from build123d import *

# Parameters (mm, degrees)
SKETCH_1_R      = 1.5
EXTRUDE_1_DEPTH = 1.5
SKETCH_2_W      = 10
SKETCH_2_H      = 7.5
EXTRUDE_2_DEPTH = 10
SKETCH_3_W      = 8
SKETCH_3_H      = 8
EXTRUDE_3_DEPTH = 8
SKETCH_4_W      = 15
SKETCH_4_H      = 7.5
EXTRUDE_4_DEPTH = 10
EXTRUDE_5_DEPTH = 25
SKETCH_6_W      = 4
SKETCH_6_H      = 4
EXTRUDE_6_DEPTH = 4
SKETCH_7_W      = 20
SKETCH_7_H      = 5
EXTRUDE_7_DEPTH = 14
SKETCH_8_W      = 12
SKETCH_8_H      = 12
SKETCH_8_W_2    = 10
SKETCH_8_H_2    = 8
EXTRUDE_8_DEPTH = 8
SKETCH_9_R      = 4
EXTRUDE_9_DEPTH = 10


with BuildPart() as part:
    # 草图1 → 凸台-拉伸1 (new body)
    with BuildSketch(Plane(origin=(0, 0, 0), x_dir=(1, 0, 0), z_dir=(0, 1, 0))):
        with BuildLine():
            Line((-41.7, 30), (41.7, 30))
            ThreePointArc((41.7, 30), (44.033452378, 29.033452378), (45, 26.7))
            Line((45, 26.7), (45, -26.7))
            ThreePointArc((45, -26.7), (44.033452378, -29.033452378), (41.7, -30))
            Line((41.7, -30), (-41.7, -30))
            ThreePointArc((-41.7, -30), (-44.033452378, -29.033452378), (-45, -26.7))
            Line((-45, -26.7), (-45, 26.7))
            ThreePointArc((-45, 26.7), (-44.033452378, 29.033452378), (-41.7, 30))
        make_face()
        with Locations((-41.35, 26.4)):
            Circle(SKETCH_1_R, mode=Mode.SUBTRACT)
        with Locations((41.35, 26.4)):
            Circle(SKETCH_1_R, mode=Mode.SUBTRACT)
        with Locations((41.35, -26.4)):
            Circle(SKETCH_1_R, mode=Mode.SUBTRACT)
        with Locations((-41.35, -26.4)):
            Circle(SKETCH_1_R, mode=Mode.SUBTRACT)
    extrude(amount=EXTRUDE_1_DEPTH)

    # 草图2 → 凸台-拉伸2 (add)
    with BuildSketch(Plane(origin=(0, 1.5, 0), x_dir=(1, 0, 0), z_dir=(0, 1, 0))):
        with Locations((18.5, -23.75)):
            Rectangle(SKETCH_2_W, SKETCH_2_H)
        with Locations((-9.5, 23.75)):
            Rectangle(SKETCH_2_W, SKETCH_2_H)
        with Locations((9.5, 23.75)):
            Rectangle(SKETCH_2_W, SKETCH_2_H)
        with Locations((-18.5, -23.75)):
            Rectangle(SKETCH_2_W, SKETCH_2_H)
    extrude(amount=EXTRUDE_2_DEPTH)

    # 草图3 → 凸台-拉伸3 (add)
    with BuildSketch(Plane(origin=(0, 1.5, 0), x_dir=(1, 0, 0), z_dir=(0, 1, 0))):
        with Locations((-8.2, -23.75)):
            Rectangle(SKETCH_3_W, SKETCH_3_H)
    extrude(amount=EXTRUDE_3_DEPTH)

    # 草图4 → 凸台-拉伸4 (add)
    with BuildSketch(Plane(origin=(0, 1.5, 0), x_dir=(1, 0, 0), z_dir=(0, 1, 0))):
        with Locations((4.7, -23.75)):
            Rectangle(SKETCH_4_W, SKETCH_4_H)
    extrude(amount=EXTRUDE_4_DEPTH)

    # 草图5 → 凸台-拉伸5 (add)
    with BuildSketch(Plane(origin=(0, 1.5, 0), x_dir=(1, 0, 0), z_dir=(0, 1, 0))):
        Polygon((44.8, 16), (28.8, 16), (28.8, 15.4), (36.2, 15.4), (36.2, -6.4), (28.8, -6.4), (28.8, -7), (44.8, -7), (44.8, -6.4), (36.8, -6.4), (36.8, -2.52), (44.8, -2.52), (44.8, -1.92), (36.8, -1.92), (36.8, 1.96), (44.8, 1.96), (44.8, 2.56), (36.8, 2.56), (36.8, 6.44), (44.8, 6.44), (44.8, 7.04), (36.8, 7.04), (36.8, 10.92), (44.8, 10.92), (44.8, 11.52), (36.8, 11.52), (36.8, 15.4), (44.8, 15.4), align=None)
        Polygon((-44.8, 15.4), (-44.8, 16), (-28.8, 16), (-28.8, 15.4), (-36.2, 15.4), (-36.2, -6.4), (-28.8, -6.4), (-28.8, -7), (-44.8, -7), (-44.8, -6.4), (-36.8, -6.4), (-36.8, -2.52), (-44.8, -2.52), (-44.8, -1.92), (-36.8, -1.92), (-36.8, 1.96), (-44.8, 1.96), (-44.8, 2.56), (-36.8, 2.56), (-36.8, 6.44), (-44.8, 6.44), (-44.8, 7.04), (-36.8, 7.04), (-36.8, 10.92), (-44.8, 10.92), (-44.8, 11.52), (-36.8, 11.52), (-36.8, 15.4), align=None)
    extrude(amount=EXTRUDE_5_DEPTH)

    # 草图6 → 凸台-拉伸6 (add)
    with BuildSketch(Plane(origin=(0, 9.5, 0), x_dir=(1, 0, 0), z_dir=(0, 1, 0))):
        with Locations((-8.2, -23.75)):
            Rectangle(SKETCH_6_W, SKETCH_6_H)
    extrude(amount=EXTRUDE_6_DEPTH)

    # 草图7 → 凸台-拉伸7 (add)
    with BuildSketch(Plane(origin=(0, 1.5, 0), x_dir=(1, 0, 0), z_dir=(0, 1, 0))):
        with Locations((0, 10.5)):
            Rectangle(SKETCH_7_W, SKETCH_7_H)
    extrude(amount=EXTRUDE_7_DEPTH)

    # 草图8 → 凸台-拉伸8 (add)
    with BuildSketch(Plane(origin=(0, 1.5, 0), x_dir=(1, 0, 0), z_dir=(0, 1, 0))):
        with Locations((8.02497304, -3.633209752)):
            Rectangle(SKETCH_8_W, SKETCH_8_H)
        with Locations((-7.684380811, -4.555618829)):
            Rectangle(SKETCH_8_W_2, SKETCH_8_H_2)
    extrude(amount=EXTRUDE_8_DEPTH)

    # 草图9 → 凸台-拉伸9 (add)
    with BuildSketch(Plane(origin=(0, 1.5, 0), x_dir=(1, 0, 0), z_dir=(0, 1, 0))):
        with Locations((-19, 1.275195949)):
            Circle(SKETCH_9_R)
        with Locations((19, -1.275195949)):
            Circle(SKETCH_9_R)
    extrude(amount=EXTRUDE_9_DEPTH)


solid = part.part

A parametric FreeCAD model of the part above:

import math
import FreeCAD as App
import Part
import Sketcher

doc = App.newDocument("Part")
body = doc.addObject("PartDesign::Body", "Body")

# Sketch on XZ plane
sketch1 = doc.addObject("Sketcher::SketchObject", "Sketch")
body.addObject(sketch1)
sketch1.AttachmentSupport = (doc.XZ_Plane, [""])
sketch1.MapMode = "FlatFace"
sketch1.addGeometry(Part.LineSegment(App.Vector(41.7, -30, 0), App.Vector(-41.7, -30, 0)), False)
sketch1.addGeometry(Part.ArcOfCircle(Part.Circle(App.Vector(-41.7, -26.7, 0), App.Vector(0, 0, 1), 3.3), math.radians(180), math.radians(270)), False)
sketch1.addGeometry(Part.LineSegment(App.Vector(-45, -26.7, 0), App.Vector(-45, 26.7, 0)), False)
sketch1.addGeometry(Part.ArcOfCircle(Part.Circle(App.Vector(-41.7, 26.7, 0), App.Vector(0, 0, 1), 3.3), math.radians(90), math.radians(180)), False)
sketch1.addGeometry(Part.LineSegment(App.Vector(-41.7, 30, 0), App.Vector(41.7, 30, 0)), False)
sketch1.addGeometry(Part.ArcOfCircle(Part.Circle(App.Vector(41.7, 26.7, 0), App.Vector(0, 0, 1), 3.3), math.radians(0), math.radians(90)), False)
sketch1.addGeometry(Part.LineSegment(App.Vector(45, 26.7, 0), App.Vector(45, -26.7, 0)), False)
sketch1.addGeometry(Part.ArcOfCircle(Part.Circle(App.Vector(41.7, -26.7, 0), App.Vector(0, 0, 1), 3.3), math.radians(-90), math.radians(0)), False)
sketch1.addGeometry(Part.Circle(App.Vector(41.4, 26.4, 0), App.Vector(0, 0, 1), 1.5), False)
sketch1.addGeometry(Part.Circle(App.Vector(-41.4, 26.4, 0), App.Vector(0, 0, 1), 1.5), False)
sketch1.addGeometry(Part.Circle(App.Vector(41.4, -26.4, 0), App.Vector(0, 0, 1), 1.5), False)
sketch1.addGeometry(Part.Circle(App.Vector(-41.4, -26.4, 0), App.Vector(0, 0, 1), 1.5), False)
sketch1.addConstraint(Sketcher.Constraint("Tangent", 0, 2, 1, 2))
sketch1.addConstraint(Sketcher.Constraint("Tangent", 1, 1, 2, 1))
sketch1.addConstraint(Sketcher.Constraint("Tangent", 2, 2, 3, 2))
sketch1.addConstraint(Sketcher.Constraint("Tangent", 3, 1, 4, 1))
sketch1.addConstraint(Sketcher.Constraint("Tangent", 4, 2, 5, 2))
sketch1.addConstraint(Sketcher.Constraint("Tangent", 5, 1, 6, 1))
sketch1.addConstraint(Sketcher.Constraint("Tangent", 6, 2, 7, 2))
sketch1.addConstraint(Sketcher.Constraint("Tangent", 7, 1, 0, 1))
sketch1.addConstraint(Sketcher.Constraint("Horizontal", 0))
sketch1.addConstraint(Sketcher.Constraint("Vertical", 2))
sketch1.addConstraint(Sketcher.Constraint("Horizontal", 4))
sketch1.addConstraint(Sketcher.Constraint("Vertical", 6))
sketch1.addConstraint(Sketcher.Constraint("Equal", 1, 3))
sketch1.addConstraint(Sketcher.Constraint("Equal", 3, 5))
sketch1.addConstraint(Sketcher.Constraint("Equal", 5, 7))
sketch1.addConstraint(Sketcher.Constraint("Equal", 8, 9))
sketch1.addConstraint(Sketcher.Constraint("Equal", 9, 10))
sketch1.addConstraint(Sketcher.Constraint("Equal", 10, 11))
sketch1.addConstraint(Sketcher.Constraint("Symmetric", 1, 3, 5, 3, -1, 1))
sketch1.addConstraint(Sketcher.Constraint("Symmetric", 9, 3, 10, 3, -1, 1))
sketch1.addConstraint(Sketcher.Constraint("Symmetric", 8, 3, 11, 3, -1, 1))
sketch1.addConstraint(Sketcher.Constraint("Symmetric", 8, 3, 9, 3, -2))
sketch1.addConstraint(Sketcher.Constraint("Diameter", 8, 3.0))
sketch1.addConstraint(Sketcher.Constraint("Radius", 1, 3.3))
sketch1.addConstraint(Sketcher.Constraint("DistanceX", 0, 2, 0, 1, 83.4))
sketch1.addConstraint(Sketcher.Constraint("DistanceY", 2, 1, 2, 2, 53.4))
sketch1.addConstraint(Sketcher.Constraint("DistanceY", -1, 1, 8, 3, 26.4))
sketch1.addConstraint(Sketcher.Constraint("DistanceX", 9, 3, 8, 3, 82.7))
pad1 = doc.addObject("PartDesign::Pad", "Pad")
body.addObject(pad1)
pad1.Profile = sketch1
pad1.Length = 1.5
pad1.Reversed = True

# Sketch on XZ plane
sketch2 = doc.addObject("Sketcher::SketchObject", "Sketch001")
body.addObject(sketch2)
sketch2.AttachmentSupport = (doc.XZ_Plane, [""])
sketch2.MapMode = "FlatFace"
sketch2.AttachmentOffset = App.Placement(App.Vector(0, 0, -1.5), App.Rotation())
sketch2.addGeometry(Part.LineSegment(App.Vector(14, 20, 0), App.Vector(14, 28, 0)), False)
sketch2.addGeometry(Part.LineSegment(App.Vector(14, 28, 0), App.Vector(24, 28, 0)), False)
sketch2.addGeometry(Part.LineSegment(App.Vector(24, 28, 0), App.Vector(24, 20, 0)), False)
sketch2.addGeometry(Part.LineSegment(App.Vector(24, 20, 0), App.Vector(14, 20, 0)), False)
sketch2.addGeometry(Part.LineSegment(App.Vector(-14, -28, 0), App.Vector(-14, -20, 0)), False)
sketch2.addGeometry(Part.LineSegment(App.Vector(-14, -20, 0), App.Vector(-4, -20, 0)), False)
sketch2.addGeometry(Part.LineSegment(App.Vector(-4, -20, 0), App.Vector(-4, -28, 0)), False)
sketch2.addGeometry(Part.LineSegment(App.Vector(-4, -28, 0), App.Vector(-14, -28, 0)), False)
sketch2.addGeometry(Part.LineSegment(App.Vector(4, -28, 0), App.Vector(4, -20, 0)), False)
sketch2.addGeometry(Part.LineSegment(App.Vector(4, -20, 0), App.Vector(14, -20, 0)), False)
sketch2.addGeometry(Part.LineSegment(App.Vector(14, -20, 0), App.Vector(14, -28, 0)), False)
sketch2.addGeometry(Part.LineSegment(App.Vector(14, -28, 0), App.Vector(4, -28, 0)), False)
sketch2.addGeometry(Part.LineSegment(App.Vector(-24, 20, 0), App.Vector(-24, 28, 0)), False)
sketch2.addGeometry(Part.LineSegment(App.Vector(-24, 28, 0), App.Vector(-14, 28, 0)), False)
sketch2.addGeometry(Part.LineSegment(App.Vector(-14, 28, 0), App.Vector(-14, 20, 0)), False)
sketch2.addGeometry(Part.LineSegment(App.Vector(-14, 20, 0), App.Vector(-24, 20, 0)), False)
sketch2.addConstraint(Sketcher.Constraint("Coincident", 0, 2, 1, 1))
sketch2.addConstraint(Sketcher.Constraint("Coincident", 1, 2, 2, 1))
sketch2.addConstraint(Sketcher.Constraint("Coincident", 2, 2, 3, 1))
sketch2.addConstraint(Sketcher.Constraint("Coincident", 3, 2, 0, 1))
sketch2.addConstraint(Sketcher.Constraint("Coincident", 4, 2, 5, 1))
sketch2.addConstraint(Sketcher.Constraint("Coincident", 5, 2, 6, 1))
sketch2.addConstraint(Sketcher.Constraint("Coincident", 6, 2, 7, 1))
sketch2.addConstraint(Sketcher.Constraint("Coincident", 7, 2, 4, 1))
sketch2.addConstraint(Sketcher.Constraint("Coincident", 8, 2, 9, 1))
sketch2.addConstraint(Sketcher.Constraint("Coincident", 9, 2, 10, 1))
sketch2.addConstraint(Sketcher.Constraint("Coincident", 10, 2, 11, 1))
sketch2.addConstraint(Sketcher.Constraint("Coincident", 11, 2, 8, 1))
sketch2.addConstraint(Sketcher.Constraint("Coincident", 12, 2, 13, 1))
sketch2.addConstraint(Sketcher.Constraint("Coincident", 13, 2, 14, 1))
sketch2.addConstraint(Sketcher.Constraint("Coincident", 14, 2, 15, 1))
sketch2.addConstraint(Sketcher.Constraint("Coincident", 15, 2, 12, 1))
sketch2.addConstraint(Sketcher.Constraint("Vertical", 0))
sketch2.addConstraint(Sketcher.Constraint("Horizontal", 1))
sketch2.addConstraint(Sketcher.Constraint("Vertical", 2))
sketch2.addConstraint(Sketcher.Constraint("Horizontal", 3))
sketch2.addConstraint(Sketcher.Constraint("Vertical", 4))
sketch2.addConstraint(Sketcher.Constraint("Horizontal", 5))
sketch2.addConstraint(Sketcher.Constraint("Vertical", 6))
sketch2.addConstraint(Sketcher.Constraint("Horizontal", 7))
sketch2.addConstraint(Sketcher.Constraint("Vertical", 8))
sketch2.addConstraint(Sketcher.Constraint("Horizontal", 9))
sketch2.addConstraint(Sketcher.Constraint("Vertical", 10))
sketch2.addConstraint(Sketcher.Constraint("Horizontal", 11))
sketch2.addConstraint(Sketcher.Constraint("Vertical", 12))
sketch2.addConstraint(Sketcher.Constraint("Horizontal", 13))
sketch2.addConstraint(Sketcher.Constraint("Vertical", 14))
sketch2.addConstraint(Sketcher.Constraint("Horizontal", 15))
sketch2.addConstraint(Sketcher.Constraint("Symmetric", 5, 2, 8, 2, -2))
sketch2.addConstraint(Sketcher.Constraint("Symmetric", 7, 2, 10, 2, -2))
sketch2.addConstraint(Sketcher.Constraint("Symmetric", 1, 2, 12, 2, -2))
sketch2.addConstraint(Sketcher.Constraint("Symmetric", 3, 2, 14, 2, -2))
sketch2.addConstraint(Sketcher.Constraint("Equal", 3, 5))
sketch2.addConstraint(Sketcher.Constraint("Equal", 2, 4))
sketch2.addConstraint(Sketcher.Constraint("DistanceX", 1, 1, 1, 2, 10.0))
sketch2.addConstraint(Sketcher.Constraint("DistanceY", 0, 1, 0, 2, 7.5))
sketch2.addConstraint(Sketcher.Constraint("DistanceY", -1, 1, 2, 2, 20.0))
sketch2.addConstraint(Sketcher.Constraint("DistanceY", 4, 2, -1, 1, 20.0))
sketch2.addConstraint(Sketcher.Constraint("DistanceX", 4, 2, 3, 2, 28.0))
sketch2.addConstraint(Sketcher.Constraint("DistanceX", 5, 2, 8, 2, 9.0))
pad2 = doc.addObject("PartDesign::Pad", "Pad001")
body.addObject(pad2)
pad2.Profile = sketch2
pad2.Length = 10
pad2.Reversed = True

# Sketch on XZ plane
sketch3 = doc.addObject("Sketcher::SketchObject", "Sketch002")
body.addObject(sketch3)
sketch3.AttachmentSupport = (doc.XZ_Plane, [""])
sketch3.MapMode = "FlatFace"
sketch3.AttachmentOffset = App.Placement(App.Vector(0, 0, -1.5), App.Rotation())
sketch3.addGeometry(Part.LineSegment(App.Vector(-12, 20, 0), App.Vector(-12, 28, 0)), False)
sketch3.addGeometry(Part.LineSegment(App.Vector(-12, 28, 0), App.Vector(-4, 28, 0)), False)
sketch3.addGeometry(Part.LineSegment(App.Vector(-4, 28, 0), App.Vector(-4, 20, 0)), False)
sketch3.addGeometry(Part.LineSegment(App.Vector(-4, 20, 0), App.Vector(-12, 20, 0)), False)
sketch3.addConstraint(Sketcher.Constraint("Coincident", 0, 2, 1, 1))
sketch3.addConstraint(Sketcher.Constraint("Coincident", 1, 2, 2, 1))
sketch3.addConstraint(Sketcher.Constraint("Coincident", 2, 2, 3, 1))
sketch3.addConstraint(Sketcher.Constraint("Coincident", 3, 2, 0, 1))
sketch3.addConstraint(Sketcher.Constraint("Vertical", 0))
sketch3.addConstraint(Sketcher.Constraint("Horizontal", 1))
sketch3.addConstraint(Sketcher.Constraint("Vertical", 2))
sketch3.addConstraint(Sketcher.Constraint("Horizontal", 3))
sketch3.addConstraint(Sketcher.Constraint("Equal", 3, 0))
sketch3.addConstraint(Sketcher.Constraint("DistanceX", 1, 1, 1, 2, 8.0))
sketch3.addConstraint(Sketcher.Constraint("DistanceX", 0, 2, -1, 1, 12.2))
sketch3.addConstraint(Sketcher.Constraint("DistanceY", -1, 1, 0, 2, 27.75))
pad3 = doc.addObject("PartDesign::Pad", "Pad002")
body.addObject(pad3)
pad3.Profile = sketch3
pad3.Length = 8
pad3.Reversed = True

# Sketch on XZ plane
sketch4 = doc.addObject("Sketcher::SketchObject", "Sketch003")
body.addObject(sketch4)
sketch4.AttachmentSupport = (doc.XZ_Plane, [""])
sketch4.MapMode = "FlatFace"
sketch4.AttachmentOffset = App.Placement(App.Vector(0, 0, -1.5), App.Rotation())
sketch4.addGeometry(Part.LineSegment(App.Vector(-3, 20, 0), App.Vector(-3, 28, 0)), False)
sketch4.addGeometry(Part.LineSegment(App.Vector(-3, 28, 0), App.Vector(12, 28, 0)), False)
sketch4.addGeometry(Part.LineSegment(App.Vector(12, 28, 0), App.Vector(12, 20, 0)), False)
sketch4.addGeometry(Part.LineSegment(App.Vector(12, 20, 0), App.Vector(-3, 20, 0)), False)
sketch4.addConstraint(Sketcher.Constraint("Coincident", 0, 2, 1, 1))
sketch4.addConstraint(Sketcher.Constraint("Coincident", 1, 2, 2, 1))
sketch4.addConstraint(Sketcher.Constraint("Coincident", 2, 2, 3, 1))
sketch4.addConstraint(Sketcher.Constraint("Coincident", 3, 2, 0, 1))
sketch4.addConstraint(Sketcher.Constraint("Vertical", 0))
sketch4.addConstraint(Sketcher.Constraint("Horizontal", 1))
sketch4.addConstraint(Sketcher.Constraint("Vertical", 2))
sketch4.addConstraint(Sketcher.Constraint("Horizontal", 3))
sketch4.addConstraint(Sketcher.Constraint("DistanceX", 1, 1, 1, 2, 15.0))
sketch4.addConstraint(Sketcher.Constraint("DistanceY", 0, 1, 0, 2, 7.5))
sketch4.addConstraint(Sketcher.Constraint("DistanceY", -1, 1, 2, 2, 20.0))
sketch4.addConstraint(Sketcher.Constraint("DistanceX", 0, 2, -1, 1, 2.8))
pad4 = doc.addObject("PartDesign::Pad", "Pad003")
body.addObject(pad4)
pad4.Profile = sketch4
pad4.Length = 10
pad4.Reversed = True

# Sketch on XZ plane
sketch5 = doc.addObject("Sketcher::SketchObject", "Sketch004")
body.addObject(sketch5)
sketch5.AttachmentSupport = (doc.XZ_Plane, [""])
sketch5.MapMode = "FlatFace"
sketch5.AttachmentOffset = App.Placement(App.Vector(0, 0, -1.5), App.Rotation())
sketch5.addGeometry(Part.LineSegment(App.Vector(44.8, -16, 0), App.Vector(28.8, -16, 0)), False)
sketch5.addGeometry(Part.LineSegment(App.Vector(28.8, -16, 0), App.Vector(28.8, -15.4, 0)), False)
sketch5.addGeometry(Part.LineSegment(App.Vector(28.8, -15.4, 0), App.Vector(36.2, -15.4, 0)), False)
sketch5.addGeometry(Part.LineSegment(App.Vector(36.2, -15.4, 0), App.Vector(36.2, 6.4, 0)), False)
sketch5.addGeometry(Part.LineSegment(App.Vector(36.2, 6.4, 0), App.Vector(28.8, 6.4, 0)), False)
sketch5.addGeometry(Part.LineSegment(App.Vector(28.8, 6.4, 0), App.Vector(28.8, 7, 0)), False)
sketch5.addGeometry(Part.LineSegment(App.Vector(28.8, 7, 0), App.Vector(44.8, 7, 0)), False)
sketch5.addGeometry(Part.LineSegment(App.Vector(44.8, 7, 0), App.Vector(44.8, 6.4, 0)), False)
sketch5.addGeometry(Part.LineSegment(App.Vector(44.8, 6.4, 0), App.Vector(36.8, 6.4, 0)), False)
sketch5.addGeometry(Part.LineSegment(App.Vector(36.8, 6.4, 0), App.Vector(36.8, 2.5, 0)), False)
sketch5.addGeometry(Part.LineSegment(App.Vector(36.8, 2.5, 0), App.Vector(44.8, 2.5, 0)), False)
sketch5.addGeometry(Part.LineSegment(App.Vector(44.8, 2.5, 0), App.Vector(44.8, 1.9, 0)), False)
sketch5.addGeometry(Part.LineSegment(App.Vector(44.8, 1.9, 0), App.Vector(36.8, 1.9, 0)), False)
sketch5.addGeometry(Part.LineSegment(App.Vector(36.8, 1.9, 0), App.Vector(36.8, -2, 0)), False)
sketch5.addGeometry(Part.LineSegment(App.Vector(36.8, -2, 0), App.Vector(44.8, -2, 0)), False)
sketch5.addGeometry(Part.LineSegment(App.Vector(44.8, -2, 0), App.Vector(44.8, -2.6, 0)), False)
sketch5.addGeometry(Part.LineSegment(App.Vector(44.8, -2.6, 0), App.Vector(36.8, -2.6, 0)), False)
sketch5.addGeometry(Part.LineSegment(App.Vector(36.8, -2.6, 0), App.Vector(36.8, -6.4, 0)), False)
sketch5.addGeometry(Part.LineSegment(App.Vector(36.8, -6.4, 0), App.Vector(44.8, -6.4, 0)), False)
sketch5.addGeometry(Part.LineSegment(App.Vector(44.8, -6.4, 0), App.Vector(44.8, -7, 0)), False)
sketch5.addGeometry(Part.LineSegment(App.Vector(44.8, -7, 0), App.Vector(36.8, -7, 0)), False)
sketch5.addGeometry(Part.LineSegment(App.Vector(36.8, -7, 0), App.Vector(36.8, -10.9, 0)), False)
sketch5.addGeometry(Part.LineSegment(App.Vector(36.8, -10.9, 0), App.Vector(44.8, -10.9, 0)), False)
sketch5.addGeometry(Part.LineSegment(App.Vector(44.8, -10.9, 0), App.Vector(44.8, -11.5, 0)), False)
sketch5.addGeometry(Part.LineSegment(App.Vector(44.8, -11.5, 0), App.Vector(36.8, -11.5, 0)), False)
sketch5.addGeometry(Part.LineSegment(App.Vector(36.8, -11.5, 0), App.Vector(36.8, -15.4, 0)), False)
sketch5.addGeometry(Part.LineSegment(App.Vector(36.8, -15.4, 0), App.Vector(44.8, -15.4, 0)), False)
sketch5.addGeometry(Part.LineSegment(App.Vector(44.8, -15.4, 0), App.Vector(44.8, -16, 0)), False)
sketch5.addGeometry(Part.LineSegment(App.Vector(-44.8, -16, 0), App.Vector(-44.8, -15.4, 0)), False)
sketch5.addGeometry(Part.LineSegment(App.Vector(-44.8, -15.4, 0), App.Vector(-36.8, -15.4, 0)), False)
sketch5.addGeometry(Part.LineSegment(App.Vector(-36.8, -15.4, 0), App.Vector(-36.8, -11.5, 0)), False)
sketch5.addGeometry(Part.LineSegment(App.Vector(-36.8, -11.5, 0), App.Vector(-44.8, -11.5, 0)), False)
sketch5.addGeometry(Part.LineSegment(App.Vector(-44.8, -11.5, 0), App.Vector(-44.8, -10.9, 0)), False)
sketch5.addGeometry(Part.LineSegment(App.Vector(-44.8, -10.9, 0), App.Vector(-36.8, -10.9, 0)), False)
sketch5.addGeometry(Part.LineSegment(App.Vector(-36.8, -10.9, 0), App.Vector(-36.8, -7, 0)), False)
sketch5.addGeometry(Part.LineSegment(App.Vector(-36.8, -7, 0), App.Vector(-44.8, -7, 0)), False)
sketch5.addGeometry(Part.LineSegment(App.Vector(-44.8, -7, 0), App.Vector(-44.8, -6.4, 0)), False)
sketch5.addGeometry(Part.LineSegment(App.Vector(-44.8, -6.4, 0), App.Vector(-36.8, -6.4, 0)), False)
sketch5.addGeometry(Part.LineSegment(App.Vector(-36.8, -6.4, 0), App.Vector(-36.8, -2.6, 0)), False)
sketch5.addGeometry(Part.LineSegment(App.Vector(-36.8, -2.6, 0), App.Vector(-44.8, -2.6, 0)), False)
sketch5.addGeometry(Part.LineSegment(App.Vector(-44.8, -2.6, 0), App.Vector(-44.8, -2, 0)), False)
sketch5.addGeometry(Part.LineSegment(App.Vector(-44.8, -2, 0), App.Vector(-36.8, -2, 0)), False)
sketch5.addGeometry(Part.LineSegment(App.Vector(-36.8, -2, 0), App.Vector(-36.8, 1.9, 0)), False)
sketch5.addGeometry(Part.LineSegment(App.Vector(-36.8, 1.9, 0), App.Vector(-44.8, 1.9, 0)), False)
sketch5.addGeometry(Part.LineSegment(App.Vector(-44.8, 1.9, 0), App.Vector(-44.8, 2.5, 0)), False)
sketch5.addGeometry(Part.LineSegment(App.Vector(-44.8, 2.5, 0), App.Vector(-36.8, 2.5, 0)), False)
sketch5.addGeometry(Part.LineSegment(App.Vector(-36.8, 2.5, 0), App.Vector(-36.8, 6.4, 0)), False)
sketch5.addGeometry(Part.LineSegment(App.Vector(-36.8, 6.4, 0), App.Vector(-44.8, 6.4, 0)), False)
sketch5.addGeometry(Part.LineSegment(App.Vector(-44.8, 6.4, 0), App.Vector(-44.8, 7, 0)), False)
sketch5.addGeometry(Part.LineSegment(App.Vector(-44.8, 7, 0), App.Vector(-28.8, 7, 0)), False)
sketch5.addGeometry(Part.LineSegment(App.Vector(-28.8, 7, 0), App.Vector(-28.8, 6.4, 0)), False)
sketch5.addGeometry(Part.LineSegment(App.Vector(-28.8, 6.4, 0), App.Vector(-36.2, 6.4, 0)), False)
sketch5.addGeometry(Part.LineSegment(App.Vector(-36.2, 6.4, 0), App.Vector(-36.2, -15.4, 0)), False)
sketch5.addGeometry(Part.LineSegment(App.Vector(-36.2, -15.4, 0), App.Vector(-28.8, -15.4, 0)), False)
sketch5.addGeometry(Part.LineSegment(App.Vector(-28.8, -15.4, 0), App.Vector(-28.8, -16, 0)), False)
sketch5.addGeometry(Part.LineSegment(App.Vector(-28.8, -16, 0), App.Vector(-44.8, -16, 0)), False)
sketch5.addConstraint(Sketcher.Constraint("Coincident", 0, 2, 1, 1))
sketch5.addConstraint(Sketcher.Constraint("Coincident", 1, 2, 2, 1))
sketch5.addConstraint(Sketcher.Constraint("Coincident", 2, 2, 3, 1))
sketch5.addConstraint(Sketcher.Constraint("Coincident", 3, 2, 4, 1))
sketch5.addConstraint(Sketcher.Constraint("Coincident", 4, 2, 5, 1))
sketch5.addConstraint(Sketcher.Constraint("Coincident", 5, 2, 6, 1))
sketch5.addConstraint(Sketcher.Constraint("Coincident", 6, 2, 7, 1))
sketch5.addConstraint(Sketcher.Constraint("Coincident", 7, 2, 8, 1))
sketch5.addConstraint(Sketcher.Constraint("Coincident", 8, 2, 9, 1))
sketch5.addConstraint(Sketcher.Constraint("Coincident", 9, 2, 10, 1))
sketch5.addConstraint(Sketcher.Constraint("Coincident", 10, 2, 11, 1))
sketch5.addConstraint(Sketcher.Constraint("Coincident", 11, 2, 12, 1))
sketch5.addConstraint(Sketcher.Constraint("Coincident", 12, 2, 13, 1))
sketch5.addConstraint(Sketcher.Constraint("Coincident", 13, 2, 14, 1))
sketch5.addConstraint(Sketcher.Constraint("Coincident", 14, 2, 15, 1))
sketch5.addConstraint(Sketcher.Constraint("Coincident", 15, 2, 16, 1))
sketch5.addConstraint(Sketcher.Constraint("Coincident", 16, 2, 17, 1))
sketch5.addConstraint(Sketcher.Constraint("Coincident", 17, 2, 18, 1))
sketch5.addConstraint(Sketcher.Constraint("Coincident", 18, 2, 19, 1))
sketch5.addConstraint(Sketcher.Constraint("Coincident", 19, 2, 20, 1))
sketch5.addConstraint(Sketcher.Constraint("Coincident", 20, 2, 21, 1))
sketch5.addConstraint(Sketcher.Constraint("Coincident", 21, 2, 22, 1))
sketch5.addConstraint(Sketcher.Constraint("Coincident", 22, 2, 23, 1))
sketch5.addConstraint(Sketcher.Constraint("Coincident", 23, 2, 24, 1))
sketch5.addConstraint(Sketcher.Constraint("Coincident", 24, 2, 25, 1))
sketch5.addConstraint(Sketcher.Constraint("Coincident", 25, 2, 26, 1))
sketch5.addConstraint(Sketcher.Constraint("Coincident", 26, 2, 27, 1))
sketch5.addConstraint(Sketcher.Constraint("Coincident", 27, 2, 0, 1))
sketch5.addConstraint(Sketcher.Constraint("Coincident", 28, 2, 29, 1))
sketch5.addConstraint(Sketcher.Constraint("Coincident", 29, 2, 30, 1))
sketch5.addConstraint(Sketcher.Constraint("Coincident", 30, 2, 31, 1))
sketch5.addConstraint(Sketcher.Constraint("Coincident", 31, 2, 32, 1))
sketch5.addConstraint(Sketcher.Constraint("Coincident", 32, 2, 33, 1))
sketch5.addConstraint(Sketcher.Constraint("Coincident", 33, 2, 34, 1))
sketch5.addConstraint(Sketcher.Constraint("Coincident", 34, 2, 35, 1))
sketch5.addConstraint(Sketcher.Constraint("Coincident", 35, 2, 36, 1))
sketch5.addConstraint(Sketcher.Constraint("Coincident", 36, 2, 37, 1))
sketch5.addConstraint(Sketcher.Constraint("Coincident", 37, 2, 38, 1))
sketch5.addConstraint(Sketcher.Constraint("Coincident", 38, 2, 39, 1))
sketch5.addConstraint(Sketcher.Constraint("Coincident", 39, 2, 40, 1))
sketch5.addConstraint(Sketcher.Constraint("Coincident", 40, 2, 41, 1))
sketch5.addConstraint(Sketcher.Constraint("Coincident", 41, 2, 42, 1))
sketch5.addConstraint(Sketcher.Constraint("Coincident", 42, 2, 43, 1))
sketch5.addConstraint(Sketcher.Constraint("Coincident", 43, 2, 44, 1))
sketch5.addConstraint(Sketcher.Constraint("Coincident", 44, 2, 45, 1))
sketch5.addConstraint(Sketcher.Constraint("Coincident", 45, 2, 46, 1))
sketch5.addConstraint(Sketcher.Constraint("Coincident", 46, 2, 47, 1))
sketch5.addConstraint(Sketcher.Constraint("Coincident", 47, 2, 48, 1))
sketch5.addConstraint(Sketcher.Constraint("Coincident", 48, 2, 49, 1))
sketch5.addConstraint(Sketcher.Constraint("Coincident", 49, 2, 50, 1))
sketch5.addConstraint(Sketcher.Constraint("Coincident", 50, 2, 51, 1))
sketch5.addConstraint(Sketcher.Constraint("Coincident", 51, 2, 52, 1))
sketch5.addConstraint(Sketcher.Constraint("Coincident", 52, 2, 53, 1))
sketch5.addConstraint(Sketcher.Constraint("Coincident", 53, 2, 54, 1))
sketch5.addConstraint(Sketcher.Constraint("Coincident", 54, 2, 55, 1))
sketch5.addConstraint(Sketcher.Constraint("Coincident", 55, 2, 28, 1))
sketch5.addConstraint(Sketcher.Constraint("Horizontal", 0))
sketch5.addConstraint(Sketcher.Constraint("Vertical", 1))
sketch5.addConstraint(Sketcher.Constraint("Horizontal", 2))
sketch5.addConstraint(Sketcher.Constraint("Vertical", 3))
sketch5.addConstraint(Sketcher.Constraint("Horizontal", 4))
sketch5.addConstraint(Sketcher.Constraint("Vertical", 5))
sketch5.addConstraint(Sketcher.Constraint("Horizontal", 6))
sketch5.addConstraint(Sketcher.Constraint("Vertical", 7))
sketch5.addConstraint(Sketcher.Constraint("Horizontal", 8))
sketch5.addConstraint(Sketcher.Constraint("Vertical", 9))
sketch5.addConstraint(Sketcher.Constraint("Horizontal", 10))
sketch5.addConstraint(Sketcher.Constraint("Vertical", 11))
sketch5.addConstraint(Sketcher.Constraint("Horizontal", 12))
sketch5.addConstraint(Sketcher.Constraint("Vertical", 13))
sketch5.addConstraint(Sketcher.Constraint("Horizontal", 14))
sketch5.addConstraint(Sketcher.Constraint("Vertical", 15))
sketch5.addConstraint(Sketcher.Constraint("Horizontal", 16))
sketch5.addConstraint(Sketcher.Constraint("Vertical", 17))
sketch5.addConstraint(Sketcher.Constraint("Horizontal", 18))
sketch5.addConstraint(Sketcher.Constraint("Vertical", 19))
sketch5.addConstraint(Sketcher.Constraint("Horizontal", 20))
sketch5.addConstraint(Sketcher.Constraint("Vertical", 21))
sketch5.addConstraint(Sketcher.Constraint("Horizontal", 22))
sketch5.addConstraint(Sketcher.Constraint("Vertical", 23))
sketch5.addConstraint(Sketcher.Constraint("Horizontal", 24))
sketch5.addConstraint(Sketcher.Constraint("Vertical", 25))
sketch5.addConstraint(Sketcher.Constraint("Horizontal", 26))
sketch5.addConstraint(Sketcher.Constraint("Vertical", 27))
sketch5.addConstraint(Sketcher.Constraint("Vertical", 28))
sketch5.addConstraint(Sketcher.Constraint("Horizontal", 29))
sketch5.addConstraint(Sketcher.Constraint("Vertical", 30))
sketch5.addConstraint(Sketcher.Constraint("Horizontal", 31))
sketch5.addConstraint(Sketcher.Constraint("Vertical", 32))
sketch5.addConstraint(Sketcher.Constraint("Horizontal", 33))
sketch5.addConstraint(Sketcher.Constraint("Vertical", 34))
sketch5.addConstraint(Sketcher.Constraint("Horizontal", 35))
sketch5.addConstraint(Sketcher.Constraint("Vertical", 36))
sketch5.addConstraint(Sketcher.Constraint("Horizontal", 37))
sketch5.addConstraint(Sketcher.Constraint("Vertical", 38))
sketch5.addConstraint(Sketcher.Constraint("Horizontal", 39))
sketch5.addConstraint(Sketcher.Constraint("Vertical", 40))
sketch5.addConstraint(Sketcher.Constraint("Horizontal", 41))
sketch5.addConstraint(Sketcher.Constraint("Vertical", 42))
sketch5.addConstraint(Sketcher.Constraint("Horizontal", 43))
sketch5.addConstraint(Sketcher.Constraint("Vertical", 44))
sketch5.addConstraint(Sketcher.Constraint("Horizontal", 45))
sketch5.addConstraint(Sketcher.Constraint("Vertical", 46))
sketch5.addConstraint(Sketcher.Constraint("Horizontal", 47))
sketch5.addConstraint(Sketcher.Constraint("Vertical", 48))
sketch5.addConstraint(Sketcher.Constraint("Horizontal", 49))
sketch5.addConstraint(Sketcher.Constraint("Vertical", 50))
sketch5.addConstraint(Sketcher.Constraint("Horizontal", 51))
sketch5.addConstraint(Sketcher.Constraint("Vertical", 52))
sketch5.addConstraint(Sketcher.Constraint("Horizontal", 53))
sketch5.addConstraint(Sketcher.Constraint("Vertical", 54))
sketch5.addConstraint(Sketcher.Constraint("Horizontal", 55))
sketch5.addConstraint(Sketcher.Constraint("Symmetric", 26, 2, 28, 2, -2))
sketch5.addConstraint(Sketcher.Constraint("Symmetric", 24, 2, 30, 2, -2))
sketch5.addConstraint(Sketcher.Constraint("Symmetric", 22, 2, 32, 2, -2))
sketch5.addConstraint(Sketcher.Constraint("Symmetric", 20, 2, 34, 2, -2))
sketch5.addConstraint(Sketcher.Constraint("Symmetric", 18, 2, 36, 2, -2))
sketch5.addConstraint(Sketcher.Constraint("Symmetric", 16, 2, 38, 2, -2))
sketch5.addConstraint(Sketcher.Constraint("Symmetric", 14, 2, 40, 2, -2))
sketch5.addConstraint(Sketcher.Constraint("Symmetric", 12, 2, 42, 2, -2))
sketch5.addConstraint(Sketcher.Constraint("Symmetric", 10, 2, 44, 2, -2))
sketch5.addConstraint(Sketcher.Constraint("Symmetric", 8, 2, 46, 2, -2))
sketch5.addConstraint(Sketcher.Constraint("Symmetric", 6, 2, 48, 2, -2))
sketch5.addConstraint(Sketcher.Constraint("Symmetric", 4, 2, 50, 2, -2))
sketch5.addConstraint(Sketcher.Constraint("Symmetric", 2, 2, 52, 2, -2))
sketch5.addConstraint(Sketcher.Constraint("Symmetric", 0, 2, 54, 2, -2))
sketch5.addConstraint(Sketcher.Constraint("Horizontal", 4, 2, 7, 2))
sketch5.addConstraint(Sketcher.Constraint("Horizontal", 2, 2, 25, 2))
sketch5.addConstraint(Sketcher.Constraint("Vertical", 1, 2, 4, 2))
sketch5.addConstraint(Sketcher.Constraint("Vertical", 7, 2, 10, 2))
sketch5.addConstraint(Sketcher.Constraint("Vertical", 9, 2, 12, 2))
sketch5.addConstraint(Sketcher.Constraint("Vertical", 11, 2, 14, 2))
sketch5.addConstraint(Sketcher.Constraint("Vertical", 13, 2, 16, 2))
sketch5.addConstraint(Sketcher.Constraint("Vertical", 15, 2, 18, 2))
sketch5.addConstraint(Sketcher.Constraint("Vertical", 17, 2, 20, 2))
sketch5.addConstraint(Sketcher.Constraint("Vertical", 19, 2, 22, 2))
sketch5.addConstraint(Sketcher.Constraint("Vertical", 21, 2, 24, 2))
sketch5.addConstraint(Sketcher.Constraint("Vertical", 23, 2, 26, 2))
sketch5.addConstraint(Sketcher.Constraint("Equal", 1, 5))
sketch5.addConstraint(Sketcher.Constraint("Equal", 7, 11))
sketch5.addConstraint(Sketcher.Constraint("Equal", 9, 13))
sketch5.addConstraint(Sketcher.Constraint("Equal", 11, 15))
sketch5.addConstraint(Sketcher.Constraint("Equal", 13, 17))
sketch5.addConstraint(Sketcher.Constraint("Equal", 15, 19))
sketch5.addConstraint(Sketcher.Constraint("Equal", 17, 21))
sketch5.addConstraint(Sketcher.Constraint("Equal", 19, 23))
sketch5.addConstraint(Sketcher.Constraint("Equal", 21, 25))
sketch5.addConstraint(Sketcher.Constraint("DistanceX", 0, 2, 0, 1, 16.0))
sketch5.addConstraint(Sketcher.Constraint("DistanceX", 8, 2, 8, 1, 8.0))
sketch5.addConstraint(Sketcher.Constraint("DistanceX", 2, 1, 2, 2, 7.4))
sketch5.addConstraint(Sketcher.Constraint("DistanceY", 1, 1, 1, 2, 0.6))
sketch5.addConstraint(Sketcher.Constraint("DistanceY", 3, 1, 3, 2, 21.8))
sketch5.addConstraint(Sketcher.Constraint("DistanceY", 0, 2, -1, 1, 16.0))
sketch5.addConstraint(Sketcher.Constraint("DistanceX", 28, 2, 2, 2, 81.0))
pad5 = doc.addObject("PartDesign::Pad", "Pad004")
body.addObject(pad5)
pad5.Profile = sketch5
pad5.Length = 25
pad5.Reversed = True

# Sketch on XZ plane
sketch6 = doc.addObject("Sketcher::SketchObject", "Sketch005")
body.addObject(sketch6)
sketch6.AttachmentSupport = (doc.XZ_Plane, [""])
sketch6.MapMode = "FlatFace"
sketch6.AttachmentOffset = App.Placement(App.Vector(0, 0, -9.5), App.Rotation())
sketch6.addGeometry(Part.LineSegment(App.Vector(-10.2, 21.8, 0), App.Vector(-10.2, 25.8, 0)), False)
sketch6.addGeometry(Part.LineSegment(App.Vector(-10.2, 25.8, 0), App.Vector(-6.2, 25.8, 0)), False)
sketch6.addGeometry(Part.LineSegment(App.Vector(-6.2, 25.8, 0), App.Vector(-6.2, 21.8, 0)), False)
sketch6.addGeometry(Part.LineSegment(App.Vector(-6.2, 21.8, 0), App.Vector(-10.2, 21.8, 0)), False)
sketch6.addConstraint(Sketcher.Constraint("Coincident", 0, 2, 1, 1))
sketch6.addConstraint(Sketcher.Constraint("Coincident", 1, 2, 2, 1))
sketch6.addConstraint(Sketcher.Constraint("Coincident", 2, 2, 3, 1))
sketch6.addConstraint(Sketcher.Constraint("Coincident", 3, 2, 0, 1))
sketch6.addConstraint(Sketcher.Constraint("Vertical", 0))
sketch6.addConstraint(Sketcher.Constraint("Horizontal", 1))
sketch6.addConstraint(Sketcher.Constraint("Vertical", 2))
sketch6.addConstraint(Sketcher.Constraint("Horizontal", 3))
sketch6.addConstraint(Sketcher.Constraint("Equal", 3, 0))
sketch6.addConstraint(Sketcher.Constraint("DistanceX", 1, 1, 1, 2, 4.0))
sketch6.addConstraint(Sketcher.Constraint("DistanceX", 0, 2, -1, 1, 10.2))
sketch6.addConstraint(Sketcher.Constraint("DistanceY", -1, 1, 0, 2, 25.75))
pad6 = doc.addObject("PartDesign::Pad", "Pad005")
body.addObject(pad6)
pad6.Profile = sketch6
pad6.Length = 4
pad6.Reversed = True

# Sketch on XZ plane
sketch7 = doc.addObject("Sketcher::SketchObject", "Sketch006")
body.addObject(sketch7)
sketch7.AttachmentSupport = (doc.XZ_Plane, [""])
sketch7.MapMode = "FlatFace"
sketch7.AttachmentOffset = App.Placement(App.Vector(0, 0, -1.5), App.Rotation())
sketch7.addGeometry(Part.LineSegment(App.Vector(-10, -13, 0), App.Vector(-10, -8, 0)), False)
sketch7.addGeometry(Part.LineSegment(App.Vector(-10, -8, 0), App.Vector(10, -8, 0)), False)
sketch7.addGeometry(Part.LineSegment(App.Vector(10, -8, 0), App.Vector(10, -13, 0)), False)
sketch7.addGeometry(Part.LineSegment(App.Vector(10, -13, 0), App.Vector(-10, -13, 0)), False)
sketch7.addConstraint(Sketcher.Constraint("Coincident", 0, 2, 1, 1))
sketch7.addConstraint(Sketcher.Constraint("Coincident", 1, 2, 2, 1))
sketch7.addConstraint(Sketcher.Constraint("Coincident", 2, 2, 3, 1))
sketch7.addConstraint(Sketcher.Constraint("Coincident", 3, 2, 0, 1))
sketch7.addConstraint(Sketcher.Constraint("Vertical", 0))
sketch7.addConstraint(Sketcher.Constraint("Horizontal", 1))
sketch7.addConstraint(Sketcher.Constraint("Vertical", 2))
sketch7.addConstraint(Sketcher.Constraint("Horizontal", 3))
sketch7.addConstraint(Sketcher.Constraint("DistanceX", 1, 1, 1, 2, 20.0))
sketch7.addConstraint(Sketcher.Constraint("DistanceY", 0, 1, 0, 2, 5.0))
sketch7.addConstraint(Sketcher.Constraint("DistanceX", 0, 2, -1, 1, 10.0))
sketch7.addConstraint(Sketcher.Constraint("DistanceY", 0, 2, -1, 1, 8.0))
pad7 = doc.addObject("PartDesign::Pad", "Pad006")
body.addObject(pad7)
pad7.Profile = sketch7
pad7.Length = 14
pad7.Reversed = True

# Sketch on XZ plane
sketch8 = doc.addObject("Sketcher::SketchObject", "Sketch007")
body.addObject(sketch8)
sketch8.AttachmentSupport = (doc.XZ_Plane, [""])
sketch8.MapMode = "FlatFace"
sketch8.AttachmentOffset = App.Placement(App.Vector(0, 0, -1.5), App.Rotation())
sketch8.addGeometry(Part.LineSegment(App.Vector(2, -2, 0), App.Vector(2, 10, 0)), False)
sketch8.addGeometry(Part.LineSegment(App.Vector(2, 10, 0), App.Vector(14, 10, 0)), False)
sketch8.addGeometry(Part.LineSegment(App.Vector(14, 10, 0), App.Vector(14, -2, 0)), False)
sketch8.addGeometry(Part.LineSegment(App.Vector(14, -2, 0), App.Vector(2, -2, 0)), False)
sketch8.addGeometry(Part.LineSegment(App.Vector(-13, 1, 0), App.Vector(-13, 9, 0)), False)
sketch8.addGeometry(Part.LineSegment(App.Vector(-13, 9, 0), App.Vector(-3, 9, 0)), False)
sketch8.addGeometry(Part.LineSegment(App.Vector(-3, 9, 0), App.Vector(-3, 1, 0)), False)
sketch8.addGeometry(Part.LineSegment(App.Vector(-3, 1, 0), App.Vector(-13, 1, 0)), False)
sketch8.addConstraint(Sketcher.Constraint("Coincident", 0, 2, 1, 1))
sketch8.addConstraint(Sketcher.Constraint("Coincident", 1, 2, 2, 1))
sketch8.addConstraint(Sketcher.Constraint("Coincident", 2, 2, 3, 1))
sketch8.addConstraint(Sketcher.Constraint("Coincident", 3, 2, 0, 1))
sketch8.addConstraint(Sketcher.Constraint("Coincident", 4, 2, 5, 1))
sketch8.addConstraint(Sketcher.Constraint("Coincident", 5, 2, 6, 1))
sketch8.addConstraint(Sketcher.Constraint("Coincident", 6, 2, 7, 1))
sketch8.addConstraint(Sketcher.Constraint("Coincident", 7, 2, 4, 1))
sketch8.addConstraint(Sketcher.Constraint("Vertical", 0))
sketch8.addConstraint(Sketcher.Constraint("Horizontal", 1))
sketch8.addConstraint(Sketcher.Constraint("Vertical", 2))
sketch8.addConstraint(Sketcher.Constraint("Horizontal", 3))
sketch8.addConstraint(Sketcher.Constraint("Vertical", 4))
sketch8.addConstraint(Sketcher.Constraint("Horizontal", 5))
sketch8.addConstraint(Sketcher.Constraint("Vertical", 6))
sketch8.addConstraint(Sketcher.Constraint("Horizontal", 7))
sketch8.addConstraint(Sketcher.Constraint("Equal", 3, 0))
sketch8.addConstraint(Sketcher.Constraint("DistanceX", 1, 1, 1, 2, 12.0))
sketch8.addConstraint(Sketcher.Constraint("DistanceX", 5, 1, 5, 2, 10.0))
sketch8.addConstraint(Sketcher.Constraint("DistanceY", 4, 1, 4, 2, 8.0))
sketch8.addConstraint(Sketcher.Constraint("DistanceY", -1, 1, 0, 2, 9.63321))
sketch8.addConstraint(Sketcher.Constraint("DistanceX", 4, 2, -1, 1, 12.684381))
sketch8.addConstraint(Sketcher.Constraint("DistanceY", -1, 1, 4, 2, 8.555619))
sketch8.addConstraint(Sketcher.Constraint("DistanceX", -1, 1, 0, 2, 2.024973))
pad8 = doc.addObject("PartDesign::Pad", "Pad007")
body.addObject(pad8)
pad8.Profile = sketch8
pad8.Length = 8
pad8.Reversed = True

# Sketch on XZ plane
sketch9 = doc.addObject("Sketcher::SketchObject", "Sketch008")
body.addObject(sketch9)
sketch9.AttachmentSupport = (doc.XZ_Plane, [""])
sketch9.MapMode = "FlatFace"
sketch9.AttachmentOffset = App.Placement(App.Vector(0, 0, -1.5), App.Rotation())
sketch9.addGeometry(Part.Circle(App.Vector(-19, -1.3, 0), App.Vector(0, 0, 1), 4), False)
sketch9.addGeometry(Part.Circle(App.Vector(19, 1.3, 0), App.Vector(0, 0, 1), 4), False)
sketch9.addConstraint(Sketcher.Constraint("Equal", 0, 1))
sketch9.addConstraint(Sketcher.Constraint("Symmetric", 0, 3, 1, 3, -1, 1))
sketch9.addConstraint(Sketcher.Constraint("Diameter", 0, 8.0))
sketch9.addConstraint(Sketcher.Constraint("DistanceX", 0, 3, -1, 1, 19.0))
sketch9.addConstraint(Sketcher.Constraint("DistanceY", 0, 3, 1, 3, 2.550392))
pad9 = doc.addObject("PartDesign::Pad", "Pad008")
body.addObject(pad9)
pad9.Profile = sketch9
pad9.Length = 10
pad9.Reversed = True

doc.recompute()
